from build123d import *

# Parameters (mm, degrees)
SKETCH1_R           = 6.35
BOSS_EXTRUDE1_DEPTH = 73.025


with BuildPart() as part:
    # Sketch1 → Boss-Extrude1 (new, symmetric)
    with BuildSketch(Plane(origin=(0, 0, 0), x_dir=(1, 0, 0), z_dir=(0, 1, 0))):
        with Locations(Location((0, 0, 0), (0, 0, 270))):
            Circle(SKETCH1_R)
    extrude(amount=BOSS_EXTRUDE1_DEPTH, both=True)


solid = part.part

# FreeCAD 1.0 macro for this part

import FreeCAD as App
import Part
import Sketcher
from FreeCAD import Vector
Q = App.Units.Quantity

doc = App.newDocument("Part")
body = doc.addObject("PartDesign::Body", "Body")

# Sketch on XZ plane
sketch1 = body.newObject("Sketcher::SketchObject", "Sketch")
sketch1.AttachmentSupport = (doc.getObject("XZ_Plane"), [""])
sketch1.MapMode = "FlatFace"
sketch1.addGeometry(Part.Circle(Vector(0, 0, 0), Vector(0, 0, 1), 6), False)
sketch1.addConstraint(Sketcher.Constraint("Coincident", 0, 3, -1, 1))
sketch1.addConstraint(Sketcher.Constraint("Diameter", 0, Q("0.5 in")))
pad1 = body.newObject("PartDesign::Pad", "Pad")
pad1.Profile = sketch1
pad1.Length = Q("5.75 in")
pad1.Midplane = True

doc.recompute()
